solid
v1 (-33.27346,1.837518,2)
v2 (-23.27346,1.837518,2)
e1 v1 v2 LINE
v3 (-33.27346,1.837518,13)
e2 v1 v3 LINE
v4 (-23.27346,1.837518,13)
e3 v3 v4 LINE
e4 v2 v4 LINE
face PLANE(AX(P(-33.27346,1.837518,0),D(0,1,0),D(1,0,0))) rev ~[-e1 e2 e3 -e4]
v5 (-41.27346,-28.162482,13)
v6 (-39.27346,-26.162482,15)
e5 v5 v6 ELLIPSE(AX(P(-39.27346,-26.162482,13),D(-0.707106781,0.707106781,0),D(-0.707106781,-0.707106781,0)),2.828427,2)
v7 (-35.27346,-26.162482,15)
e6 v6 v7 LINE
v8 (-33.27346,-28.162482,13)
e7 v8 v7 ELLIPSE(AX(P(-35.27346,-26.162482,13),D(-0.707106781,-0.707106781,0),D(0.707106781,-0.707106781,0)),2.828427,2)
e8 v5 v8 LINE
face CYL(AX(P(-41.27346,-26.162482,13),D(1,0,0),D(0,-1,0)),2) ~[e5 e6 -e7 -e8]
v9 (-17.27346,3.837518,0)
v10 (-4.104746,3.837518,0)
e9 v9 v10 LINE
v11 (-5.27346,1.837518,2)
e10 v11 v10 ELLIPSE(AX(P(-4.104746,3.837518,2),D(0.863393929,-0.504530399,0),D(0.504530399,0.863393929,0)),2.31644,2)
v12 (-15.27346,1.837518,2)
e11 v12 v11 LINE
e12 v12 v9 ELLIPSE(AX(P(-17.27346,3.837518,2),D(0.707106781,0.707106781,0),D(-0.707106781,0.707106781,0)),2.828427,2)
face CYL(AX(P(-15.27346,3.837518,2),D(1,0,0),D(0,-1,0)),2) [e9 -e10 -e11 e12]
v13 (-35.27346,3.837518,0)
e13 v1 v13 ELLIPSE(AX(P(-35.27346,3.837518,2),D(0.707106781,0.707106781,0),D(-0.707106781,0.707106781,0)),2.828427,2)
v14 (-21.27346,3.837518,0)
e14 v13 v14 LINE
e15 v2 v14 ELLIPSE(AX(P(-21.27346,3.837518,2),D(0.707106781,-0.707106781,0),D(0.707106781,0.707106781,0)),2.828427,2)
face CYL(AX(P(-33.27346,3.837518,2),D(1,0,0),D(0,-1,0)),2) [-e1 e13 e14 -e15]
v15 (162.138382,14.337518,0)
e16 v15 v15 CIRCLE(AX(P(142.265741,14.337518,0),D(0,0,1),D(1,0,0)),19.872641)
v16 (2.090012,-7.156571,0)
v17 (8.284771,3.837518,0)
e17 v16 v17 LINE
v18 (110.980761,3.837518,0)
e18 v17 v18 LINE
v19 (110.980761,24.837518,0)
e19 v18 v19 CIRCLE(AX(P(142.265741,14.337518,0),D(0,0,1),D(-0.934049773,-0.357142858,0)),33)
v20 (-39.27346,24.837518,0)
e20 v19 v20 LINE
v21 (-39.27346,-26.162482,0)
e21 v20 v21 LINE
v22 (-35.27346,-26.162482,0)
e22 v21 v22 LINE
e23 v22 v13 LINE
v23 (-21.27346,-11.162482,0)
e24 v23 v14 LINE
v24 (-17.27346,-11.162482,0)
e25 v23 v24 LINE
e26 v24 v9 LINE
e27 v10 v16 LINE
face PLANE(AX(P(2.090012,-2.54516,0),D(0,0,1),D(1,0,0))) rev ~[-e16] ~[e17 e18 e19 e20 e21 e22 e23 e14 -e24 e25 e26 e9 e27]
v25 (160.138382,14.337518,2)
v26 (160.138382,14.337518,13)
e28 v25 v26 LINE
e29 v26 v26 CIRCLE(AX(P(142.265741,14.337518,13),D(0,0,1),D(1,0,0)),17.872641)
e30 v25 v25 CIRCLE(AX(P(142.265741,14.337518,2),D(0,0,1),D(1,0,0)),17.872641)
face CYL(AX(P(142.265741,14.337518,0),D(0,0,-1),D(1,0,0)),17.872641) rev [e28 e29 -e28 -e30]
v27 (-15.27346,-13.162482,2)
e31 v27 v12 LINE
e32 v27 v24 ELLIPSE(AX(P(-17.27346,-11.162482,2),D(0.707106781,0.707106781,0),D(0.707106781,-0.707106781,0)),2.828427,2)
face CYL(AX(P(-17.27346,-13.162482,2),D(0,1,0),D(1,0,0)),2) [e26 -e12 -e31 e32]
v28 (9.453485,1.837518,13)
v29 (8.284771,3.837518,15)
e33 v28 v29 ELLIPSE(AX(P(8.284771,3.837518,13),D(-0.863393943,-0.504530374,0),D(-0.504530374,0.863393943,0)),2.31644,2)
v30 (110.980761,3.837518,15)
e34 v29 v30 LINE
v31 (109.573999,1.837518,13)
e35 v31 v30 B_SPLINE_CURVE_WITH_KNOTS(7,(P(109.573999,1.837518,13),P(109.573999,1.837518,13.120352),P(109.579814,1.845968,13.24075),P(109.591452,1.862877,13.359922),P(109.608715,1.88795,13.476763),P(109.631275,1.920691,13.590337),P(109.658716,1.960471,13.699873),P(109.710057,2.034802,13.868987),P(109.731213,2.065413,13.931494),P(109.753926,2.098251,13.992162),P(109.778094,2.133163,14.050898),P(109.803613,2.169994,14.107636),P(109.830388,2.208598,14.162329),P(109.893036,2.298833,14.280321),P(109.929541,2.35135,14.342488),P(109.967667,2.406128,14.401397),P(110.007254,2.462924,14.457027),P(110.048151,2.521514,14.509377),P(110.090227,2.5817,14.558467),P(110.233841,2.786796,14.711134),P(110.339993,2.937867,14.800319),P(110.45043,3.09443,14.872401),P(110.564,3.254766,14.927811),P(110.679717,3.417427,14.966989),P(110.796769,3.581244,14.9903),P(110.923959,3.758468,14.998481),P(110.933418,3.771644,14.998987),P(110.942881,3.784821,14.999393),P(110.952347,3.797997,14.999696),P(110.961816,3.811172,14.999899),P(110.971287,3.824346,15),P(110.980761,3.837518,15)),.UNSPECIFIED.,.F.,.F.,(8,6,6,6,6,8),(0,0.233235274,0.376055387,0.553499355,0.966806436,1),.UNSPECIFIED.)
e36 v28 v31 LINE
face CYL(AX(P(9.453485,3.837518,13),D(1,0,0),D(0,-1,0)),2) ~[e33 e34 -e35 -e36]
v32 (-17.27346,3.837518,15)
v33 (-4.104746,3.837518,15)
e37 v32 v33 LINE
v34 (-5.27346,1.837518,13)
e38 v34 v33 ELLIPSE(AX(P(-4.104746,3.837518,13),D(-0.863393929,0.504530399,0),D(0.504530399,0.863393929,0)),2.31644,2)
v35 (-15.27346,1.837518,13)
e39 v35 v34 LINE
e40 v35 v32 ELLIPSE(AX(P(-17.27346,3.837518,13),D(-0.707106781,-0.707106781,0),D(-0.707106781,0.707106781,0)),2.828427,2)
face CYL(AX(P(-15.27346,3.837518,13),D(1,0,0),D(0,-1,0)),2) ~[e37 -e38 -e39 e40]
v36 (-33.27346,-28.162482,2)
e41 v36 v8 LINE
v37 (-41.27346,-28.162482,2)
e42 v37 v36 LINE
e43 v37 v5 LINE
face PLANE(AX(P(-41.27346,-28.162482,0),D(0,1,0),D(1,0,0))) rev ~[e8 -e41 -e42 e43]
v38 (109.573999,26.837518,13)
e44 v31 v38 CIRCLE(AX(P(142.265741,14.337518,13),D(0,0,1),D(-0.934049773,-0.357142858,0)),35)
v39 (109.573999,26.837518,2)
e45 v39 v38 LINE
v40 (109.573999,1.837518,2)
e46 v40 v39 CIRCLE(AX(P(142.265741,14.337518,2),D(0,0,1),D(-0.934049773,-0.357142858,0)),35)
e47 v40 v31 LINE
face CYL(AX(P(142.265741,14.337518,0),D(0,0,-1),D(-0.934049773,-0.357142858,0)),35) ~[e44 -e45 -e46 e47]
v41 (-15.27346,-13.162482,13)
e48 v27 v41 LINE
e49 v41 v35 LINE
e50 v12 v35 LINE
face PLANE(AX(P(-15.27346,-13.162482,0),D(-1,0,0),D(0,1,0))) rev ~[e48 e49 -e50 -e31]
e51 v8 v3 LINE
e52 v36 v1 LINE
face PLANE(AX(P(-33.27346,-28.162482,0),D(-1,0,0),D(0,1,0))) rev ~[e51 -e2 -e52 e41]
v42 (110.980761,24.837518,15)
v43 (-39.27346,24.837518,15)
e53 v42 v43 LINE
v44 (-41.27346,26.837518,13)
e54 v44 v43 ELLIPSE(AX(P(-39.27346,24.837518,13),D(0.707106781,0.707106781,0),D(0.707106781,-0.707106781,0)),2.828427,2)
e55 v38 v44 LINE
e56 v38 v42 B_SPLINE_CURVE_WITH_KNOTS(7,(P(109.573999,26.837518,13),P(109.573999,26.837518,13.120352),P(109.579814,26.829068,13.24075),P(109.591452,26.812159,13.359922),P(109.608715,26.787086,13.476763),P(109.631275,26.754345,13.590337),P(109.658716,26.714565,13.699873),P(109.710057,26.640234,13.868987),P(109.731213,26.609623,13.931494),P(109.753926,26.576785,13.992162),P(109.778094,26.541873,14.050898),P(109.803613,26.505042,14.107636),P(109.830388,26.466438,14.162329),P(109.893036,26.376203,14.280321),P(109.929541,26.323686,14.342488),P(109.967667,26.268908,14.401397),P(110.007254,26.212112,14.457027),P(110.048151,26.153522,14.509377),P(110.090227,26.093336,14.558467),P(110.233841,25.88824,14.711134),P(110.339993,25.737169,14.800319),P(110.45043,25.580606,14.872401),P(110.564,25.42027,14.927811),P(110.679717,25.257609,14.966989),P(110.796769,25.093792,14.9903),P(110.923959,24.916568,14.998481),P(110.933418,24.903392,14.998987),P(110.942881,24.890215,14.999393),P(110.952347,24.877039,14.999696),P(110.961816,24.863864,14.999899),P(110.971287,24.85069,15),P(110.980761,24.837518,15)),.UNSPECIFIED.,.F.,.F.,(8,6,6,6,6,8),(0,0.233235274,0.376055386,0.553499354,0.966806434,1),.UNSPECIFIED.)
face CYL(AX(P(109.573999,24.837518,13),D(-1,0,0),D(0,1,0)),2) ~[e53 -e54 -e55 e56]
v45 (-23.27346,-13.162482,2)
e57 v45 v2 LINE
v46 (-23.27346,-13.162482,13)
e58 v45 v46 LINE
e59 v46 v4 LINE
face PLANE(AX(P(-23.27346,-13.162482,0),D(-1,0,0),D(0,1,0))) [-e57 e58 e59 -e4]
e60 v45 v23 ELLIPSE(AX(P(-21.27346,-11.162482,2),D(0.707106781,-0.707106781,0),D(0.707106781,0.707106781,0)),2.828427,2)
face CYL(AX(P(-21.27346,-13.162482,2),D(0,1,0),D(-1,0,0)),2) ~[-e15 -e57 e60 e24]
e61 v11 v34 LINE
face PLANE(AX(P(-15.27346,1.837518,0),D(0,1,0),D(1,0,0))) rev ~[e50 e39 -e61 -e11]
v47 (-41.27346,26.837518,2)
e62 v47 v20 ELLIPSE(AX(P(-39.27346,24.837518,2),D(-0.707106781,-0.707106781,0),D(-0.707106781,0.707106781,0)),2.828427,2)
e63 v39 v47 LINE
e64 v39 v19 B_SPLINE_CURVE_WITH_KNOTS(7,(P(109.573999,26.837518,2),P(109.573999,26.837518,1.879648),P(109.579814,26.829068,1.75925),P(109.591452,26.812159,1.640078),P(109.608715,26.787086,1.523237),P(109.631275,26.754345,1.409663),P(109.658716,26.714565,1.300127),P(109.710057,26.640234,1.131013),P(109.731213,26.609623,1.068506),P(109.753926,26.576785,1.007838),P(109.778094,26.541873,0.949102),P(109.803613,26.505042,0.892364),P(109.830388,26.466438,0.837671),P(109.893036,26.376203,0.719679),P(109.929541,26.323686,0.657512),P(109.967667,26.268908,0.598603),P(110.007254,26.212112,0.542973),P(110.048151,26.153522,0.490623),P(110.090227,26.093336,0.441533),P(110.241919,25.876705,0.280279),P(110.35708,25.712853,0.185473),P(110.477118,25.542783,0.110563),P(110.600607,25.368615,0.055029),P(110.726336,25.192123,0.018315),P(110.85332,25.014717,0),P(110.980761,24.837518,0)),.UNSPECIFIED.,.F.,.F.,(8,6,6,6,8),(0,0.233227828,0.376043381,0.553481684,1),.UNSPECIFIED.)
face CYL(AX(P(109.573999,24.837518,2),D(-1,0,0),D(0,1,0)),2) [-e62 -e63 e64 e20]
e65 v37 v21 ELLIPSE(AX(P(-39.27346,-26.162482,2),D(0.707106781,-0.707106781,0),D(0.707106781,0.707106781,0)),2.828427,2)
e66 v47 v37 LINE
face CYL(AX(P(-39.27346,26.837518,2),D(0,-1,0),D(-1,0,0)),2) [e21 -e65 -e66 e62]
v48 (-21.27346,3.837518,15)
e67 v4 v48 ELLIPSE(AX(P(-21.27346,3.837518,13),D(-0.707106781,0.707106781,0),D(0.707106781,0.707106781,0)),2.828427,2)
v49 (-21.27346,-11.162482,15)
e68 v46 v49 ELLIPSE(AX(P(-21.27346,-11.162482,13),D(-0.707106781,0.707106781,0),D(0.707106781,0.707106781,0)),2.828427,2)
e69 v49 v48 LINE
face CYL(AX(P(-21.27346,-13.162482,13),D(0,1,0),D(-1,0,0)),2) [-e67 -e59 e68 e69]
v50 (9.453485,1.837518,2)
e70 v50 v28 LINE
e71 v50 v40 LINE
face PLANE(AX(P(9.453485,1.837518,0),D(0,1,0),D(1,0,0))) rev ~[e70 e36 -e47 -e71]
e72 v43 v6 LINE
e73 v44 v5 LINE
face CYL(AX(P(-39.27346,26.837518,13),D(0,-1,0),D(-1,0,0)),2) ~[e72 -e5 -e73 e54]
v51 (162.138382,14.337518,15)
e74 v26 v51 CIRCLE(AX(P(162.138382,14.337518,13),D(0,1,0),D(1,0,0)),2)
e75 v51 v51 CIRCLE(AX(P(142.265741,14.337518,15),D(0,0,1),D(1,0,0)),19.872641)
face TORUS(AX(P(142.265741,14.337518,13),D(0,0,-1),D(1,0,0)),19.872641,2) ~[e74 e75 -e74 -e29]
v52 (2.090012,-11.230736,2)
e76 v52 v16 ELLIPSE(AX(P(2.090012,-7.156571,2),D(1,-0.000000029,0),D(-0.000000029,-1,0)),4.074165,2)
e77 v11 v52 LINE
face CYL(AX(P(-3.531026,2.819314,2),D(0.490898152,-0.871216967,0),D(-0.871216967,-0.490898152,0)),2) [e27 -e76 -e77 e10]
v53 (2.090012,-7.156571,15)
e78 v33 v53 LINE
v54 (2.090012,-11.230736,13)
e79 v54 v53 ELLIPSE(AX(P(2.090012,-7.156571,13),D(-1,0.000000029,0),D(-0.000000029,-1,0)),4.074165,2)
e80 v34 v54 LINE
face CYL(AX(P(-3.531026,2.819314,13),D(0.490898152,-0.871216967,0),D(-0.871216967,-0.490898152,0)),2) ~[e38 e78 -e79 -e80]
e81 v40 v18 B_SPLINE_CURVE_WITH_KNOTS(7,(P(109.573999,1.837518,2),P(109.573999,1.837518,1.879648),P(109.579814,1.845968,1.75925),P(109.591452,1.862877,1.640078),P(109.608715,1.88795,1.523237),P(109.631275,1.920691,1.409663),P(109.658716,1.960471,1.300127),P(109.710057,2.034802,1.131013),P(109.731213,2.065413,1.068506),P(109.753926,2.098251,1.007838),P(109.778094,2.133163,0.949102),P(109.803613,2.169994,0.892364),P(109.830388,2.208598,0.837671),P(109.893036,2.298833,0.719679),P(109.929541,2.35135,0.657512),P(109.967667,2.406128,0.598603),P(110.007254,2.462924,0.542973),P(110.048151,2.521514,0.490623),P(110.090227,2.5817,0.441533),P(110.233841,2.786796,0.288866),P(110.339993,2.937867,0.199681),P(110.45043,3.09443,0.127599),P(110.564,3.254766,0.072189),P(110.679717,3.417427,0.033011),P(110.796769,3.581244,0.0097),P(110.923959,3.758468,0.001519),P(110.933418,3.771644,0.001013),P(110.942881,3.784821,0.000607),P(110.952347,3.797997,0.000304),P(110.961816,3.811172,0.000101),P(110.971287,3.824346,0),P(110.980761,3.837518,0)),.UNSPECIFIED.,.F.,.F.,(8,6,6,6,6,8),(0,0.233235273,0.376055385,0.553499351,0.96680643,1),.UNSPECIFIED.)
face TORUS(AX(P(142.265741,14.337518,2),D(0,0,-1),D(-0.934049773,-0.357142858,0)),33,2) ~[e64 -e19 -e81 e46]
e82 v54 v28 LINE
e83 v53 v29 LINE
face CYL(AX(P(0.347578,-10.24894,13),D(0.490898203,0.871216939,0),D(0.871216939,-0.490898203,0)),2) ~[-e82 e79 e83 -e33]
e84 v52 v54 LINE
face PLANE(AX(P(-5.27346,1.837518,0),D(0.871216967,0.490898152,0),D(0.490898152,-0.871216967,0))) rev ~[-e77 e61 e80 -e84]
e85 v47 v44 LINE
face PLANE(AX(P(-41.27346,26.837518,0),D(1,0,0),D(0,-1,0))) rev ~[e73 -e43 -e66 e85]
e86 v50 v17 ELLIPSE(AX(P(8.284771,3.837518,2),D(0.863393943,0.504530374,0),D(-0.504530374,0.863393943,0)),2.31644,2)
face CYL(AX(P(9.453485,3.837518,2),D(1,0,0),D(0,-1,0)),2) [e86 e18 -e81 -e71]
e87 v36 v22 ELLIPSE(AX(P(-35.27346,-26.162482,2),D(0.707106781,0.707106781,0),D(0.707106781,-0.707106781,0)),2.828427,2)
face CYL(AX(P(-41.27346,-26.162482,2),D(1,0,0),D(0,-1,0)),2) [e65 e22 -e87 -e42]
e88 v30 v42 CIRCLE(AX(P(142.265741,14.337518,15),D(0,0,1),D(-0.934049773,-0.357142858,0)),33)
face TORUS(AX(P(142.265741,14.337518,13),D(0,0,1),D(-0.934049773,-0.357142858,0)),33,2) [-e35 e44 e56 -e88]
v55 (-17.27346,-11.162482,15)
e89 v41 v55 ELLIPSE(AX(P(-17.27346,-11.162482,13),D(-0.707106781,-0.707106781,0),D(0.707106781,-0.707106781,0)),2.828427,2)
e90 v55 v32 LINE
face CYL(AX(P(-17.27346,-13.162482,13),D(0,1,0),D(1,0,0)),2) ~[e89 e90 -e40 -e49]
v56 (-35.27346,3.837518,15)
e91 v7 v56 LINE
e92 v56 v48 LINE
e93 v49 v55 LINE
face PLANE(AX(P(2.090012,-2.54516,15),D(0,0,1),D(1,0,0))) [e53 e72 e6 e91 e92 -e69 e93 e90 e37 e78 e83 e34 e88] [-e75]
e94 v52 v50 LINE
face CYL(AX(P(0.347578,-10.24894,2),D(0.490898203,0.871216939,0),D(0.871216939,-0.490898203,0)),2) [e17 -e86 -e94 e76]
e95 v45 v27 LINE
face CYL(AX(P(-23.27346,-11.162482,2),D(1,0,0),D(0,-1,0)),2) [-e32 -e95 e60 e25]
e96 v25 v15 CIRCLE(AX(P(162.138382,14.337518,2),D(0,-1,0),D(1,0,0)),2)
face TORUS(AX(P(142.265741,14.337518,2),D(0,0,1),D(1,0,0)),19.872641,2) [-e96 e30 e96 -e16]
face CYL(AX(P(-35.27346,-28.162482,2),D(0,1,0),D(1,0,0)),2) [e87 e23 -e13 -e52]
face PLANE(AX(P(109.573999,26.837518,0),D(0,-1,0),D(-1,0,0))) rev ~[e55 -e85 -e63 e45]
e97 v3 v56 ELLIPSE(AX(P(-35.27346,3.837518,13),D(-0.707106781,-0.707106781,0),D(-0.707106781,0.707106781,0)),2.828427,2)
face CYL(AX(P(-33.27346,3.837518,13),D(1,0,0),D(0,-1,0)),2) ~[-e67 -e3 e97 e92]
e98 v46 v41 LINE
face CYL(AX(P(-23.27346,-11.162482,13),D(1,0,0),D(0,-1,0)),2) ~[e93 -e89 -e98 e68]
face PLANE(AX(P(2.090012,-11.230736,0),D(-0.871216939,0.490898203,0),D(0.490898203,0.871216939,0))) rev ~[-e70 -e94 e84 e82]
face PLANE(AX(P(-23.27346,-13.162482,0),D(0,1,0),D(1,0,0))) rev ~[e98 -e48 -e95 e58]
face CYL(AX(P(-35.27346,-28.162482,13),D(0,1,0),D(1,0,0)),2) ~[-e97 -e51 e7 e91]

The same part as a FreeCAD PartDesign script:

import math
import FreeCAD as App
import Part
import Sketcher


def edges_at(feature, points):
    """Names of the edges that pass closest to the given points."""
    edges = feature.Shape.Edges
    near = lambda p: min(range(len(edges)), key=lambda i: edges[i].distToShape(Part.Vertex(*p))[0])
    return sorted({f"Edge{near(p) + 1}" for p in points})

doc = App.newDocument("Part")
body = doc.addObject("PartDesign::Body", "Body")

# Sketch on XY plane
sketch1 = doc.addObject("Sketcher::SketchObject", "Sketch")
body.addObject(sketch1)
sketch1.AttachmentSupport = (doc.XY_Plane, [""])
sketch1.MapMode = "FlatFace"
sketch1.addGeometry(Part.LineSegment(App.Vector(2.090012, -11.230736, 0), App.Vector(9.453485, 1.837518, 0)), False)
sketch1.addGeometry(Part.LineSegment(App.Vector(9.453485, 1.837518, 0), App.Vector(109.573999, 1.837518, 0)), False)
sketch1.addGeometry(Part.ArcOfCircle(Part.Circle(App.Vector(142.265741, 14.337518, 0), App.Vector(0, 0, 1), 35), math.radians(-159.075168), math.radians(159.075168)), False)
sketch1.addGeometry(Part.LineSegment(App.Vector(109.573999, 26.837518, 0), App.Vector(-41.27346, 26.837518, 0)), False)
sketch1.addGeometry(Part.LineSegment(App.Vector(-41.27346, 26.837518, 0), App.Vector(-41.27346, -28.162482, 0)), False)
sketch1.addGeometry(Part.LineSegment(App.Vector(-41.27346, -28.162482, 0), App.Vector(-33.27346, -28.162482, 0)), False)
sketch1.addGeometry(Part.LineSegment(App.Vector(-33.27346, -28.162482, 0), App.Vector(-33.27346, 1.837518, 0)), False)
sketch1.addGeometry(Part.LineSegment(App.Vector(-33.27346, 1.837518, 0), App.Vector(-23.27346, 1.837518, 0)), False)
sketch1.addGeometry(Part.LineSegment(App.Vector(-23.27346, 1.837518, 0), App.Vector(-23.27346, -13.162482, 0)), False)
sketch1.addGeometry(Part.LineSegment(App.Vector(-23.27346, -13.162482, 0), App.Vector(-15.27346, -13.162482, 0)), False)
sketch1.addGeometry(Part.LineSegment(App.Vector(-15.27346, -13.162482, 0), App.Vector(-15.27346, 1.837518, 0)), False)
sketch1.addGeometry(Part.LineSegment(App.Vector(-15.27346, 1.837518, 0), App.Vector(-5.27346, 1.837518, 0)), False)
sketch1.addGeometry(Part.LineSegment(App.Vector(-5.27346, 1.837518, 0), App.Vector(2.090012, -11.230736, 0)), False)
sketch1.addGeometry(Part.Circle(App.Vector(142.265741, 14.337518, 0), App.Vector(0, 0, 1), 17.872641), False)
sketch1.addConstraint(Sketcher.Constraint("Coincident", 0, 2, 1, 1))
sketch1.addConstraint(Sketcher.Constraint("Coincident", 1, 2, 2, 1))
sketch1.addConstraint(Sketcher.Constraint("Coincident", 2, 2, 3, 1))
sketch1.addConstraint(Sketcher.Constraint("Coincident", 3, 2, 4, 1))
sketch1.addConstraint(Sketcher.Constraint("Coincident", 4, 2, 5, 1))
sketch1.addConstraint(Sketcher.Constraint("Coincident", 5, 2, 6, 1))
sketch1.addConstraint(Sketcher.Constraint("Coincident", 6, 2, 7, 1))
sketch1.addConstraint(Sketcher.Constraint("Coincident", 7, 2, 8, 1))
sketch1.addConstraint(Sketcher.Constraint("Coincident", 8, 2, 9, 1))
sketch1.addConstraint(Sketcher.Constraint("Coincident", 9, 2, 10, 1))
sketch1.addConstraint(Sketcher.Constraint("Coincident", 10, 2, 11, 1))
sketch1.addConstraint(Sketcher.Constraint("Coincident", 11, 2, 12, 1))
sketch1.addConstraint(Sketcher.Constraint("Coincident", 12, 2, 0, 1))
sketch1.addConstraint(Sketcher.Constraint("Horizontal", 1))
sketch1.addConstraint(Sketcher.Constraint("Horizontal", 3))
sketch1.addConstraint(Sketcher.Constraint("Vertical", 4))
sketch1.addConstraint(Sketcher.Constraint("Horizontal", 5))
sketch1.addConstraint(Sketcher.Constraint("Vertical", 6))
sketch1.addConstraint(Sketcher.Constraint("Horizontal", 7))
sketch1.addConstraint(Sketcher.Constraint("Vertical", 8))
sketch1.addConstraint(Sketcher.Constraint("Horizontal", 9))
sketch1.addConstraint(Sketcher.Constraint("Vertical", 10))
sketch1.addConstraint(Sketcher.Constraint("Horizontal", 11))
sketch1.addConstraint(Sketcher.Constraint("Coincident", 13, 3, 2, 3))
sketch1.addConstraint(Sketcher.Constraint("Horizontal", 1, 2, 6, 2))
sketch1.addConstraint(Sketcher.Constraint("Horizontal", 7, 2, 10, 2))
sketch1.addConstraint(Sketcher.Constraint("Vertical", 1, 2, 2, 2))
sketch1.addConstraint(Sketcher.Constraint("Equal", 5, 9))
sketch1.addConstraint(Sketcher.Constraint("Equal", 7, 11))
sketch1.addConstraint(Sketcher.Constraint("Equal", 0, 12))
sketch1.addConstraint(Sketcher.Constraint("Radius", 2, 35.0))
sketch1.addConstraint(Sketcher.Constraint("DistanceX", 5, 1, 5, 2, 8.0))
sketch1.addConstraint(Sketcher.Constraint("DistanceX", 7, 1, 7, 2, 10.0))
sketch1.addConstraint(Sketcher.Constraint("DistanceY", 4, 2, 4, 1, 55.0))
sketch1.addConstraint(Sketcher.Constraint("DistanceY", 6, 1, 6, 2, 30.0))
sketch1.addConstraint(Sketcher.Constraint("DistanceY", 8, 2, 8, 1, 15.0))
sketch1.addConstraint(Sketcher.Constraint("Distance", 0, 15.0))
sketch1.addConstraint(Sketcher.Constraint("Diameter", 13, 35.745282))
sketch1.addConstraint(Sketcher.Constraint("DistanceX", -1, 1, 1, 2, 109.573999))
sketch1.addConstraint(Sketcher.Constraint("DistanceX", 3, 2, 3, 1, 150.847459))
sketch1.addConstraint(Sketcher.Constraint("DistanceX", 1, 1, 1, 2, 100.120514))
sketch1.addConstraint(Sketcher.Constraint("DistanceY", -1, 1, 2, 3, 14.337518))
pad1 = doc.addObject("PartDesign::Pad", "Pad")
body.addObject(pad1)
pad1.Profile = sketch1
pad1.Length = 15
doc.recompute()

fillet = doc.addObject("PartDesign::Fillet", "Fillet")
body.addObject(fillet)
fillet.Base = (pad1, edges_at(pad1, [
    (-41.273, -0.662, 15),
    (-37.273, -28.162, 15),
    (-33.273, -13.162, 15),
    (-28.273, 1.838, 15),
    (-23.273, -5.662, 15),
    (-19.273, -13.162, 15),
    (-15.273, -5.662, 15),
    (-10.273, 1.838, 15),
    (-1.592, -4.697, 15),
    (5.772, -4.697, 15),
    (59.514, 1.838, 15),
    (177.266, 14.338, 15),
    (34.15, 26.838, 15),
    (124.393, 14.338, 15),
    (-37.273, -28.162, 0),
    (-33.273, -13.162, 0),
    (-28.273, 1.838, 0),
    (-23.273, -5.662, 0),
    (-19.273, -13.162, 0),
    (-15.273, -5.662, 0),
    (-10.273, 1.838, 0),
    (-1.592, -4.697, 0),
    (5.772, -4.697, 0),
    (59.514, 1.838, 0),
    (177.266, 14.338, 0),
    (34.15, 26.838, 0),
    (-41.273, -0.662, 0),
    (124.393, 14.338, 0),
]))
fillet.Radius = 2

doc.recompute()
